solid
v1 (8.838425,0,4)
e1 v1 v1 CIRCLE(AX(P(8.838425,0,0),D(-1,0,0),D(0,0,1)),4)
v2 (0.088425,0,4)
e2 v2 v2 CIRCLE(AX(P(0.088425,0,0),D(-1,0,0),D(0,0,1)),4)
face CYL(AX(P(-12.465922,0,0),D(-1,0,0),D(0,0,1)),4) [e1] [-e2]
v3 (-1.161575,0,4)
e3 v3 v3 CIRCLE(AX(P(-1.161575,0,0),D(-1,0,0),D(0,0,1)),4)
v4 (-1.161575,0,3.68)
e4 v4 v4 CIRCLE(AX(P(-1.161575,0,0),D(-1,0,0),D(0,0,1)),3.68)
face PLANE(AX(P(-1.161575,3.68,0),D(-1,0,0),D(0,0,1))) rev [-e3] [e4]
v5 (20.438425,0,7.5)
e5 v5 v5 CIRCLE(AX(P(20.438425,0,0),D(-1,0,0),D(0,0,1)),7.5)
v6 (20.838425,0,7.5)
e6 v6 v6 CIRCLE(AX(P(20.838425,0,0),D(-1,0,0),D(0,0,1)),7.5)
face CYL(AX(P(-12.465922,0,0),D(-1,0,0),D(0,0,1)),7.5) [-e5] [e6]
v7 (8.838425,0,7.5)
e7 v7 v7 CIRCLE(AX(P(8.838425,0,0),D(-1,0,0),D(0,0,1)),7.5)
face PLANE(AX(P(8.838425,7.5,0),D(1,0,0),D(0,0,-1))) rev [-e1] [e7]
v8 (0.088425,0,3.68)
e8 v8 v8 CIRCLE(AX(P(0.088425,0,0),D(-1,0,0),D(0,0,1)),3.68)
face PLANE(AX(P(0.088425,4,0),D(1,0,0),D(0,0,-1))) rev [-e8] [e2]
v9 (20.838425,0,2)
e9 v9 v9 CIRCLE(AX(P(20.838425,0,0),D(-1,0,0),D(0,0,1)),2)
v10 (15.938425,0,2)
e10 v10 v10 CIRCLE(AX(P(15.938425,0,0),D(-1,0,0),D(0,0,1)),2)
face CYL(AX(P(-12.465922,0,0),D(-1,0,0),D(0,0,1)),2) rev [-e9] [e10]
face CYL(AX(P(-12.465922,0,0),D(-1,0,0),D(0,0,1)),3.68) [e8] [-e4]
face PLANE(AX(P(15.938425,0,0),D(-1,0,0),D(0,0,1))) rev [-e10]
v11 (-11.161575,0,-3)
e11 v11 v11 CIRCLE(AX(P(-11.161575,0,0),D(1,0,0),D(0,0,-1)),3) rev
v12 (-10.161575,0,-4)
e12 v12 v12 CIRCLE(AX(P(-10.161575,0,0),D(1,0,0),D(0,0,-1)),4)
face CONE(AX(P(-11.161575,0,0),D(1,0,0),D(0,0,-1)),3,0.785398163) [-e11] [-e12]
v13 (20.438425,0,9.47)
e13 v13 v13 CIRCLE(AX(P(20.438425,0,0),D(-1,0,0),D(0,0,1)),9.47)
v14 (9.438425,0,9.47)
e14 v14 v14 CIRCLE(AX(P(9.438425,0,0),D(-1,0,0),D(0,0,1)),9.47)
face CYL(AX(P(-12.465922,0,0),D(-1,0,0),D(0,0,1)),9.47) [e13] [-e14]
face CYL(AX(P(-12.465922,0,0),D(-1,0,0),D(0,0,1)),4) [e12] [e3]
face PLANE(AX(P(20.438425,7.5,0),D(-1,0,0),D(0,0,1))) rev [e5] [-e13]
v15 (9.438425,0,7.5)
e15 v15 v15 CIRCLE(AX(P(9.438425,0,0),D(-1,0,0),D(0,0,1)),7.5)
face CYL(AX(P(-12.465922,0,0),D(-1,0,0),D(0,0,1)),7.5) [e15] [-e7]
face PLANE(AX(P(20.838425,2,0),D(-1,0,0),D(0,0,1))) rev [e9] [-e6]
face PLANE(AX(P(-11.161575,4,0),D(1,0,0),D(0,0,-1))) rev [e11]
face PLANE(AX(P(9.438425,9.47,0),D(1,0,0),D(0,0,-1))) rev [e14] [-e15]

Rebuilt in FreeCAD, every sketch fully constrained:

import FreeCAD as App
import Part
import Sketcher
from FreeCAD import Vector


def edges_at(feature, points):
    """Names of the edges that pass closest to the given points."""
    edges = feature.Shape.Edges
    near = lambda p: min(range(len(edges)), key=lambda i: edges[i].distToShape(Part.Vertex(*p))[0])
    return sorted({f"Edge{near(p) + 1}" for p in points})

doc = App.newDocument("Part")
body = doc.addObject("PartDesign::Body", "Body")

# Sketch on XY plane
sketch1 = body.newObject("Sketcher::SketchObject", "Sketch")
sketch1.AttachmentSupport = (doc.getObject("XY_Plane"), [""])
sketch1.MapMode = "FlatFace"
sketch1.addGeometry(Part.LineSegment(Vector(15.938425, 0, 0), Vector(15.938425, 2, 0)), False)
sketch1.addGeometry(Part.LineSegment(Vector(15.938425, 2, 0), Vector(20.838425, 2, 0)), False)
sketch1.addGeometry(Part.LineSegment(Vector(20.838425, 2, 0), Vector(20.838425, 7.5, 0)), False)
sketch1.addGeometry(Part.LineSegment(Vector(20.838425, 7.5, 0), Vector(20.438425, 7.5, 0)), False)
sketch1.addGeometry(Part.LineSegment(Vector(20.438425, 7.5, 0), Vector(20.438425, 9.47, 0)), False)
sketch1.addGeometry(Part.LineSegment(Vector(20.438425, 9.47, 0), Vector(9.438425, 9.47, 0)), False)
sketch1.addGeometry(Part.LineSegment(Vector(9.438425, 9.47, 0), Vector(9.438425, 7.5, 0)), False)
sketch1.addGeometry(Part.LineSegment(Vector(9.438425, 7.5, 0), Vector(8.838425, 7.5, 0)), False)
sketch1.addGeometry(Part.LineSegment(Vector(8.838425, 7.5, 0), Vector(8.838425, 4, 0)), False)
sketch1.addGeometry(Part.LineSegment(Vector(8.838425, 4, 0), Vector(0.088425, 4, 0)), False)
sketch1.addGeometry(Part.LineSegment(Vector(0.088425, 4, 0), Vector(0.088425, 3.68, 0)), False)
sketch1.addGeometry(Part.LineSegment(Vector(0.088425, 3.68, 0), Vector(-1.161575, 3.68, 0)), False)
sketch1.addGeometry(Part.LineSegment(Vector(-1.161575, 3.68, 0), Vector(-1.161575, 4, 0)), False)
sketch1.addGeometry(Part.LineSegment(Vector(-1.161575, 4, 0), Vector(-11.161575, 4, 0)), False)
sketch1.addGeometry(Part.LineSegment(Vector(-11.161575, 4, 0), Vector(-11.161575, 0, 0)), False)
sketch1.addGeometry(Part.LineSegment(Vector(-11.161575, 0, 0), Vector(15.938425, 0, 0)), False)
sketch1.addConstraint(Sketcher.Constraint("Coincident", 0, 2, 1, 1))
sketch1.addConstraint(Sketcher.Constraint("Coincident", 1, 2, 2, 1))
sketch1.addConstraint(Sketcher.Constraint("Coincident", 2, 2, 3, 1))
sketch1.addConstraint(Sketcher.Constraint("Coincident", 3, 2, 4, 1))
sketch1.addConstraint(Sketcher.Constraint("Coincident", 4, 2, 5, 1))
sketch1.addConstraint(Sketcher.Constraint("Coincident", 5, 2, 6, 1))
sketch1.addConstraint(Sketcher.Constraint("Coincident", 6, 2, 7, 1))
sketch1.addConstraint(Sketcher.Constraint("Coincident", 7, 2, 8, 1))
sketch1.addConstraint(Sketcher.Constraint("Coincident", 8, 2, 9, 1))
sketch1.addConstraint(Sketcher.Constraint("Coincident", 9, 2, 10, 1))
sketch1.addConstraint(Sketcher.Constraint("Coincident", 10, 2, 11, 1))
sketch1.addConstraint(Sketcher.Constraint("Coincident", 11, 2, 12, 1))
sketch1.addConstraint(Sketcher.Constraint("Coincident", 12, 2, 13, 1))
sketch1.addConstraint(Sketcher.Constraint("Coincident", 13, 2, 14, 1))
sketch1.addConstraint(Sketcher.Constraint("Coincident", 14, 2, 15, 1))
sketch1.addConstraint(Sketcher.Constraint("Coincident", 15, 2, 0, 1))
sketch1.addConstraint(Sketcher.Constraint("Vertical", 0))
sketch1.addConstraint(Sketcher.Constraint("Horizontal", 1))
sketch1.addConstraint(Sketcher.Constraint("Vertical", 2))
sketch1.addConstraint(Sketcher.Constraint("Horizontal", 3))
sketch1.addConstraint(Sketcher.Constraint("Vertical", 4))
sketch1.addConstraint(Sketcher.Constraint("Horizontal", 5))
sketch1.addConstraint(Sketcher.Constraint("Vertical", 6))
sketch1.addConstraint(Sketcher.Constraint("Horizontal", 7))
sketch1.addConstraint(Sketcher.Constraint("Vertical", 8))
sketch1.addConstraint(Sketcher.Constraint("Horizontal", 9))
sketch1.addConstraint(Sketcher.Constraint("Vertical", 10))
sketch1.addConstraint(Sketcher.Constraint("Horizontal", 11))
sketch1.addConstraint(Sketcher.Constraint("Vertical", 12))
sketch1.addConstraint(Sketcher.Constraint("Horizontal", 13))
sketch1.addConstraint(Sketcher.Constraint("Vertical", 14))
sketch1.addConstraint(Sketcher.Constraint("Horizontal", 15))
sketch1.addConstraint(Sketcher.Constraint("PointOnObject", 14, 2, -1))
sketch1.addConstraint(Sketcher.Constraint("Horizontal", 3, 2, 6, 2))
sketch1.addConstraint(Sketcher.Constraint("Horizontal", 9, 2, 12, 2))
sketch1.addConstraint(Sketcher.Constraint("DistanceX", 5, 2, 5, 1, 11.0))
sketch1.addConstraint(Sketcher.Constraint("DistanceX", 13, 2, 13, 1, 10.0))
sketch1.addConstraint(Sketcher.Constraint("DistanceY", 0, 1, 0, 2, 2.0))
sketch1.addConstraint(Sketcher.Constraint("DistanceY", 14, 2, 14, 1, 4.0))
sketch1.addConstraint(Sketcher.Constraint("DistanceX", 1, 1, 1, 2, 4.9))
sketch1.addConstraint(Sketcher.Constraint("DistanceX", 3, 2, 3, 1, 0.4))
sketch1.addConstraint(Sketcher.Constraint("DistanceX", 7, 2, 7, 1, 0.6))
sketch1.addConstraint(Sketcher.Constraint("DistanceX", 15, 1, 15, 2, 27.1))
sketch1.addConstraint(Sketcher.Constraint("DistanceY", 2, 1, 2, 2, 5.5))
sketch1.addConstraint(Sketcher.Constraint("DistanceX", 9, 2, 9, 1, 8.75))
sketch1.addConstraint(Sketcher.Constraint("DistanceY", 4, 1, 4, 2, 1.97))
sketch1.addConstraint(Sketcher.Constraint("DistanceY", 10, 2, 10, 1, 0.32))
sketch1.addConstraint(Sketcher.Constraint("DistanceX", -1, 1, 0, 2, 15.938425))
revolution = body.newObject("PartDesign::Revolution", "Revolution")
revolution.Profile = sketch1
revolution.ReferenceAxis = (sketch1, ["H_Axis"])
revolution.Angle = 360
doc.recompute()

chamfer = body.newObject("PartDesign::Chamfer", "Chamfer")
chamfer.Base = (revolution, edges_at(revolution, [(-11.162, 0, -4)]))
chamfer.Size = 1

doc.recompute()
